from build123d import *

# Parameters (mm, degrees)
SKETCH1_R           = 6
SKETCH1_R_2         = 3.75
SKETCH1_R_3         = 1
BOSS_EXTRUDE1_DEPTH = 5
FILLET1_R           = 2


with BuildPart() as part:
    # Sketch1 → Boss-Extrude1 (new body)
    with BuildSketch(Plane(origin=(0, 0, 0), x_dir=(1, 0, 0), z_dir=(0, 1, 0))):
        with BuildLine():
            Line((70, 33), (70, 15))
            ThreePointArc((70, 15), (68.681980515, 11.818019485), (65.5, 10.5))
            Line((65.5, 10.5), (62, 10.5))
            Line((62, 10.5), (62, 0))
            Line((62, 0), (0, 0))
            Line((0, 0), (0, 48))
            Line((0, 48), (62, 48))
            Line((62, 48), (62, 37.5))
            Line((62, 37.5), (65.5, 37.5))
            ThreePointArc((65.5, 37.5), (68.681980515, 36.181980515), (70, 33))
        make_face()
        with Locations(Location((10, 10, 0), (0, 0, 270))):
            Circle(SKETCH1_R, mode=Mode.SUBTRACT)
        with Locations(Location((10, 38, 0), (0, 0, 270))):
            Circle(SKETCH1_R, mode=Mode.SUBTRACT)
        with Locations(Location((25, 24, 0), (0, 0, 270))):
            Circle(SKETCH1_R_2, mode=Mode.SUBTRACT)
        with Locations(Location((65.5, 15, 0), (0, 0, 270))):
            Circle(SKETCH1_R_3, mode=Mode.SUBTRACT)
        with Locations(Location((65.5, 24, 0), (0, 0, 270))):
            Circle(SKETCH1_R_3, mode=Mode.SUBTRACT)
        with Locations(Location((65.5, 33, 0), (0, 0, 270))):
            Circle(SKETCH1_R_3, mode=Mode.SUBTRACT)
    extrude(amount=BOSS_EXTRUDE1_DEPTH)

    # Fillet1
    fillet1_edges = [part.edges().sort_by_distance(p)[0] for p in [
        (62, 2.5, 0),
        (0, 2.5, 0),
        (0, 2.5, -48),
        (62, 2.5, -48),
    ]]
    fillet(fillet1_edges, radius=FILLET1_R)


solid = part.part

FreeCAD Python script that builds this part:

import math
import FreeCAD as App
import Part
import Sketcher
from FreeCAD import Vector


def edges_at(feature, points):
    """Names of the edges that pass closest to the given points."""
    edges = feature.Shape.Edges
    near = lambda p: min(range(len(edges)), key=lambda i: edges[i].distToShape(Part.Vertex(*p))[0])
    return sorted({f"Edge{near(p) + 1}" for p in points})

doc = App.newDocument("Part")
params = doc.addObject("Spreadsheet::Sheet", "Params")
for row, (alias, value) in enumerate([
    ("sketch1_diameter", "2 mm"),
    ("sketch1_diameter2", "12 mm"),
    ("sketch1_diameter3", "7.5 mm"),
    ("sketch1_radius", "4.5 mm"),
    ("sketch1_width", "62 mm"),
    ("pad1_length", "5 mm"),
    ("fillet_radius", "2 mm"),
], start=1):
    params.set(f"A{row}", alias)
    params.set(f"B{row}", "=" + value)
    params.setAlias(f"B{row}", alias)

body = doc.addObject("PartDesign::Body", "Body")

# Sketch on XZ plane
sketch1 = doc.addObject("Sketcher::SketchObject", "Sketch")
body.addObject(sketch1)
sketch1.AttachmentSupport = (doc.XZ_Plane, [""])
sketch1.MapMode = "FlatFace"
sketch1.addGeometry([
    Part.LineSegment(Vector(70, -15, 0), Vector(70, -33, 0)),  # 0
    Part.ArcOfCircle(Part.Circle(Vector(65.5, -33, 0), Vector(0, 0, 1), 4.5), math.radians(-90), math.radians(0)),  # 1
    Part.LineSegment(Vector(65.5, -37.5, 0), Vector(62, -37.5, 0)),  # 2
    Part.LineSegment(Vector(62, -37.5, 0), Vector(62, -48, 0)),  # 3
    Part.LineSegment(Vector(62, -48, 0), Vector(0, -48, 0)),  # 4
    Part.LineSegment(Vector(0, -48, 0), Vector(0, 0, 0)),  # 5
    Part.LineSegment(Vector(0, 0, 0), Vector(62, 0, 0)),  # 6
    Part.LineSegment(Vector(62, 0, 0), Vector(62, -10.5, 0)),  # 7
    Part.LineSegment(Vector(62, -10.5, 0), Vector(65.5, -10.5, 0)),  # 8
    Part.ArcOfCircle(Part.Circle(Vector(65.5, -15, 0), Vector(0, 0, 1), 4.5), math.radians(0), math.radians(90)),  # 9
    Part.Circle(Vector(65.5, -15, 0), Vector(0, 0, 1), 1),  # 10
    Part.Circle(Vector(10, -10, 0), Vector(0, 0, 1), 6),  # 11
    Part.Circle(Vector(65.5, -24, 0), Vector(0, 0, 1), 1),  # 12
    Part.Circle(Vector(65.5, -33, 0), Vector(0, 0, 1), 1),  # 13
    Part.Circle(Vector(25, -24, 0), Vector(0, 0, 1), 3.8),  # 14
    Part.Circle(Vector(10, -38, 0), Vector(0, 0, 1), 6),  # 15
], False)
sketch1.addConstraint([
    Sketcher.Constraint("Tangent", 0, 2, 1, 2),
    Sketcher.Constraint("Tangent", 1, 1, 2, 1),
    Sketcher.Constraint("Coincident", 2, 2, 3, 1),
    Sketcher.Constraint("Coincident", 3, 2, 4, 1),
    Sketcher.Constraint("Coincident", 4, 2, 5, 1),
    Sketcher.Constraint("Coincident", 5, 2, 6, 1),
    Sketcher.Constraint("Coincident", 6, 2, 7, 1),
    Sketcher.Constraint("Coincident", 7, 2, 8, 1),
    Sketcher.Constraint("Tangent", 8, 2, 9, 2),
    Sketcher.Constraint("Tangent", 9, 1, 0, 1),
    Sketcher.Constraint("Vertical", 0),
    Sketcher.Constraint("Horizontal", 2),
    Sketcher.Constraint("Vertical", 3),
    Sketcher.Constraint("Horizontal", 4),
    Sketcher.Constraint("Vertical", 5),
    Sketcher.Constraint("Horizontal", 6),
    Sketcher.Constraint("Vertical", 7),
    Sketcher.Constraint("Horizontal", 8),
    Sketcher.Constraint("Coincident", 5, 2, -1, 1),
    Sketcher.Constraint("Coincident", 10, 3, 9, 3),
    Sketcher.Constraint("Coincident", 13, 3, 1, 3),
    Sketcher.Constraint("Equal", 1, 9),
    Sketcher.Constraint("Equal", 10, 12),
    Sketcher.Constraint("Equal", 12, 13),
    Sketcher.Constraint("Equal", 11, 15),
    Sketcher.Constraint("Horizontal", 12, 3, 14, 3),
    Sketcher.Constraint("Vertical", 10, 3, 12, 3),
    Sketcher.Constraint("Vertical", 11, 3, 15, 3),
    Sketcher.Constraint("Vertical", 3, 2, 6, 2),
    Sketcher.Constraint("Equal", 3, 7),
    Sketcher.Constraint("Diameter", 10, 2.0),
    Sketcher.Constraint("Diameter", 11, 12.0),
    Sketcher.Constraint("Diameter", 14, 7.5),
    Sketcher.Constraint("Radius", 1, 4.5),
    Sketcher.Constraint("DistanceX", 4, 2, 4, 1, 62.0),
    Sketcher.Constraint("DistanceY", 0, 2, 0, 1, 18.0),
    Sketcher.Constraint("DistanceY", 5, 1, 5, 2, 48.0),
    Sketcher.Constraint("DistanceX", 2, 2, 2, 1, 3.5),
    Sketcher.Constraint("DistanceX", -1, 1, 11, 3, 10.0),
    Sketcher.Constraint("DistanceY", 11, 3, -1, 1, 10.0),
    Sketcher.Constraint("DistanceY", 12, 3, -1, 1, 24.0),
    Sketcher.Constraint("DistanceX", -1, 1, 14, 3, 25.0),
    Sketcher.Constraint("DistanceY", 15, 3, -1, 1, 38.0),
])
sketch1.setExpression("Constraints[30]", "Params.sketch1_diameter")
sketch1.setExpression("Constraints[31]", "Params.sketch1_diameter2")
sketch1.setExpression("Constraints[32]", "Params.sketch1_diameter3")
sketch1.setExpression("Constraints[33]", "Params.sketch1_radius")
sketch1.setExpression("Constraints[34]", "Params.sketch1_width")
pad1 = doc.addObject("PartDesign::Pad", "Pad")
body.addObject(pad1)
pad1.Profile = sketch1
pad1.setExpression("Length", "Params.pad1_length")
pad1.Reversed = True
doc.recompute()

fillet = doc.addObject("PartDesign::Fillet", "Fillet")
body.addObject(fillet)
fillet.Base = (pad1, edges_at(pad1, [
    (62, 2.5, 0),
    (0, 2.5, 0),
    (0, 2.5, -48),
    (62, 2.5, -48),
]))
fillet.setExpression("Radius", "Params.fillet_radius")

doc.recompute()
